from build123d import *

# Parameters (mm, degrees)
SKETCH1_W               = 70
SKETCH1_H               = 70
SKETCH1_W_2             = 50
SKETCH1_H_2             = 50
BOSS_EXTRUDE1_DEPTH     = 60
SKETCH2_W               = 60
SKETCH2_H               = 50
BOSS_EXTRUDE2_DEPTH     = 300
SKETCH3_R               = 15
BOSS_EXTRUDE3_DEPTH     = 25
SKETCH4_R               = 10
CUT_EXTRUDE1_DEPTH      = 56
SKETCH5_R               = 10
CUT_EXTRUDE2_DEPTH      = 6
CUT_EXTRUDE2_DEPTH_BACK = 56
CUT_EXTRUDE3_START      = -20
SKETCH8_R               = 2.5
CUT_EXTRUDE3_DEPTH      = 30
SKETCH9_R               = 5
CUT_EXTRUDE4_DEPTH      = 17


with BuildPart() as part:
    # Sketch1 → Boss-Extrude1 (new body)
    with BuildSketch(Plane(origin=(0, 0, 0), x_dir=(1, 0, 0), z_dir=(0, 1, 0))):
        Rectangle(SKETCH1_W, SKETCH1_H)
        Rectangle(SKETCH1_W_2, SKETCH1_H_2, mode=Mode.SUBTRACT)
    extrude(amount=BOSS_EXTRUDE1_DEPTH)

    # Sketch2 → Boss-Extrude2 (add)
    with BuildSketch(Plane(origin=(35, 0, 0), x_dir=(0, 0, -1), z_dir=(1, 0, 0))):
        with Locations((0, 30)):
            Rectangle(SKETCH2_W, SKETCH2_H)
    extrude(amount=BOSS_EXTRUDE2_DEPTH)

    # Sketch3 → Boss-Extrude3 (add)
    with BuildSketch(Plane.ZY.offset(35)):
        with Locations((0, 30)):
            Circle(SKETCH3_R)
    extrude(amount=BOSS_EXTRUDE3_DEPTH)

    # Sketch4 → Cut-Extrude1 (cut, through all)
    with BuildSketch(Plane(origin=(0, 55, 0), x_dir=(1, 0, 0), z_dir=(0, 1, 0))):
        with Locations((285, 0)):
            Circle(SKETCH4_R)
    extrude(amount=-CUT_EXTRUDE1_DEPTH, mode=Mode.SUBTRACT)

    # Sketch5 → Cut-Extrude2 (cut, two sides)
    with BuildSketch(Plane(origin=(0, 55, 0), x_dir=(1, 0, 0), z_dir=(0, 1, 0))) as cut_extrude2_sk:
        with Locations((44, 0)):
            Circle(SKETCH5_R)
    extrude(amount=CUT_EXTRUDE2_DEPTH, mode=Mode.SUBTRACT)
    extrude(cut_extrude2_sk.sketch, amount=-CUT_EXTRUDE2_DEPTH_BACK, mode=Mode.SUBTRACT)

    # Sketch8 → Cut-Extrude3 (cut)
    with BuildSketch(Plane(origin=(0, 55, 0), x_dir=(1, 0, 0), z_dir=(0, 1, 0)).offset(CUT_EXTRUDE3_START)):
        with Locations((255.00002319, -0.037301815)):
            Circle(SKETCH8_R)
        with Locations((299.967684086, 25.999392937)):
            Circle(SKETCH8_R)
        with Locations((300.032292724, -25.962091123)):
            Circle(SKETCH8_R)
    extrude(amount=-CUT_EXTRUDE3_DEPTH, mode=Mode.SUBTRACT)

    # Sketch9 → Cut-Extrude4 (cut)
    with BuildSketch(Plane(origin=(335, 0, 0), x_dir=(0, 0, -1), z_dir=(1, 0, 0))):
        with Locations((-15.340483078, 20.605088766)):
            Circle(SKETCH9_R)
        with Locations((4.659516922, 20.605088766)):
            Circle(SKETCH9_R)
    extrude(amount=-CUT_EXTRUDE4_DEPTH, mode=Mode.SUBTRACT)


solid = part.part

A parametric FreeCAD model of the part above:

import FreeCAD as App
import Part
import Sketcher
Q = App.Units.Quantity

doc = App.newDocument("Part")
body = doc.addObject("PartDesign::Body", "Body")

sketch1 = body.newObject("Sketcher::SketchObject", "Sketch")
sketch1.AttachmentSupport = (doc.getObject("XZ_Plane"), [""])
sketch1.MapMode = "FlatFace"
sketch1.addGeometry(Part.LineSegment(App.Vector(-35, -35, 0), App.Vector(-35, 35, 0)), False)
sketch1.addGeometry(Part.LineSegment(App.Vector(-35, 35, 0), App.Vector(35, 35, 0)), False)
sketch1.addGeometry(Part.LineSegment(App.Vector(35, 35, 0), App.Vector(35, -35, 0)), False)
sketch1.addGeometry(Part.LineSegment(App.Vector(35, -35, 0), App.Vector(-35, -35, 0)), False)
sketch1.addGeometry(Part.LineSegment(App.Vector(25, 25, 0), App.Vector(-25, 25, 0)), False)
sketch1.addGeometry(Part.LineSegment(App.Vector(-25, 25, 0), App.Vector(-25, -25, 0)), False)
sketch1.addGeometry(Part.LineSegment(App.Vector(-25, -25, 0), App.Vector(25, -25, 0)), False)
sketch1.addGeometry(Part.LineSegment(App.Vector(25, -25, 0), App.Vector(25, 25, 0)), False)
sketch1.addConstraint(Sketcher.Constraint("Coincident", 0, 2, 1, 1))
sketch1.addConstraint(Sketcher.Constraint("Coincident", 1, 2, 2, 1))
sketch1.addConstraint(Sketcher.Constraint("Coincident", 2, 2, 3, 1))
sketch1.addConstraint(Sketcher.Constraint("Coincident", 3, 2, 0, 1))
sketch1.addConstraint(Sketcher.Constraint("Coincident", 4, 2, 5, 1))
sketch1.addConstraint(Sketcher.Constraint("Coincident", 5, 2, 6, 1))
sketch1.addConstraint(Sketcher.Constraint("Coincident", 6, 2, 7, 1))
sketch1.addConstraint(Sketcher.Constraint("Coincident", 7, 2, 4, 1))
sketch1.addConstraint(Sketcher.Constraint("Vertical", 0))
sketch1.addConstraint(Sketcher.Constraint("Horizontal", 1))
sketch1.addConstraint(Sketcher.Constraint("Vertical", 2))
sketch1.addConstraint(Sketcher.Constraint("Horizontal", 3))
sketch1.addConstraint(Sketcher.Constraint("Horizontal", 4))
sketch1.addConstraint(Sketcher.Constraint("Vertical", 5))
sketch1.addConstraint(Sketcher.Constraint("Horizontal", 6))
sketch1.addConstraint(Sketcher.Constraint("Vertical", 7))
sketch1.addConstraint(Sketcher.Constraint("Symmetric", 0, 2, 2, 2, -1, 1))
sketch1.addConstraint(Sketcher.Constraint("Symmetric", 4, 2, 6, 2, -1, 1))
sketch1.addConstraint(Sketcher.Constraint("Equal", 3, 0))
sketch1.addConstraint(Sketcher.Constraint("Equal", 6, 5))
sketch1.addConstraint(Sketcher.Constraint("DistanceX", 1, 1, 1, 2, Q("70 mm")))
sketch1.addConstraint(Sketcher.Constraint("DistanceX", 4, 2, 4, 1, Q("50 mm")))
pad1 = body.newObject("PartDesign::Pad", "Pad")
pad1.Profile = sketch1
pad1.Length = 60
pad1.Reversed = True

sketch2 = body.newObject("Sketcher::SketchObject", "Sketch001")
sketch2.AttachmentSupport = (doc.getObject("YZ_Plane"), [""])
sketch2.MapMode = "FlatFace"
sketch2.AttachmentOffset = App.Placement(App.Vector(0, 0, 35), App.Rotation())
sketch2.addGeometry(Part.LineSegment(App.Vector(55, 30, 0), App.Vector(5, 30, 0)), False)
sketch2.addGeometry(Part.LineSegment(App.Vector(5, 30, 0), App.Vector(5, -30, 0)), False)
sketch2.addGeometry(Part.LineSegment(App.Vector(5, -30, 0), App.Vector(55, -30, 0)), False)
sketch2.addGeometry(Part.LineSegment(App.Vector(55, -30, 0), App.Vector(55, 30, 0)), False)
sketch2.addConstraint(Sketcher.Constraint("Coincident", 0, 2, 1, 1))
sketch2.addConstraint(Sketcher.Constraint("Coincident", 1, 2, 2, 1))
sketch2.addConstraint(Sketcher.Constraint("Coincident", 2, 2, 3, 1))
sketch2.addConstraint(Sketcher.Constraint("Coincident", 3, 2, 0, 1))
sketch2.addConstraint(Sketcher.Constraint("Horizontal", 0))
sketch2.addConstraint(Sketcher.Constraint("Vertical", 1))
sketch2.addConstraint(Sketcher.Constraint("Horizontal", 2))
sketch2.addConstraint(Sketcher.Constraint("Vertical", 3))
sketch2.addConstraint(Sketcher.Constraint("DistanceX", 0, 2, 0, 1, Q("50 mm")))
sketch2.addConstraint(Sketcher.Constraint("DistanceY", 1, 2, 1, 1, Q("60 mm")))
sketch2.addConstraint(Sketcher.Constraint("DistanceX", -1, 1, 0, 2, Q("5 mm")))
sketch2.addConstraint(Sketcher.Constraint("DistanceY", -1, 1, 0, 2, Q("30 mm")))
pad2 = body.newObject("PartDesign::Pad", "Pad001")
pad2.Profile = sketch2
pad2.Length = 300

sketch3 = body.newObject("Sketcher::SketchObject", "Sketch002")
sketch3.AttachmentSupport = (doc.getObject("YZ_Plane"), [""])
sketch3.MapMode = "FlatFace"
sketch3.AttachmentOffset = App.Placement(App.Vector(0, 0, -35), App.Rotation())
sketch3.addGeometry(Part.Circle(App.Vector(30, 0, 0), App.Vector(0, 0, 1), 15), False)
sketch3.addConstraint(Sketcher.Constraint("PointOnObject", 0, 3, -1))
sketch3.addConstraint(Sketcher.Constraint("Diameter", 0, Q("30 mm")))
sketch3.addConstraint(Sketcher.Constraint("DistanceX", -1, 1, 0, 3, Q("30 mm")))
pad3 = body.newObject("PartDesign::Pad", "Pad002")
pad3.Profile = sketch3
pad3.Length = 25
pad3.Reversed = True

sketch4 = body.newObject("Sketcher::SketchObject", "Sketch003")
sketch4.AttachmentSupport = (doc.getObject("XZ_Plane"), [""])
sketch4.MapMode = "FlatFace"
sketch4.AttachmentOffset = App.Placement(App.Vector(0, 0, -55), App.Rotation())
sketch4.addGeometry(Part.Circle(App.Vector(285, 0, 0), App.Vector(0, 0, 1), 10), False)
sketch4.addConstraint(Sketcher.Constraint("PointOnObject", 0, 3, -1))
sketch4.addConstraint(Sketcher.Constraint("Diameter", 0, Q("20 mm")))
sketch4.addConstraint(Sketcher.Constraint("DistanceX", -1, 1, 0, 3, Q("285 mm")))
pocket1 = body.newObject("PartDesign::Pocket", "Pocket")
pocket1.Profile = sketch4
pocket1.Type = "ThroughAll"
pocket1.Reversed = True

sketch5 = body.newObject("Sketcher::SketchObject", "Sketch004")
sketch5.AttachmentSupport = (doc.getObject("XZ_Plane"), [""])
sketch5.MapMode = "FlatFace"
sketch5.AttachmentOffset = App.Placement(App.Vector(0, 0, -55), App.Rotation())
sketch5.addGeometry(Part.Circle(App.Vector(44, 0, 0), App.Vector(0, 0, 1), 10), False)
sketch5.addConstraint(Sketcher.Constraint("PointOnObject", 0, 3, -1))
sketch5.addConstraint(Sketcher.Constraint("Diameter", 0, Q("20 mm")))
sketch5.addConstraint(Sketcher.Constraint("DistanceX", -1, 1, 0, 3, Q("44 mm")))
pocket2 = body.newObject("PartDesign::Pocket", "Pocket001")
pocket2.Profile = sketch5
pocket2.Type = "ThroughAll"
pocket2.Midplane = True

sketch6 = body.newObject("Sketcher::SketchObject", "Sketch005")
sketch6.AttachmentSupport = (doc.getObject("XZ_Plane"), [""])
sketch6.MapMode = "FlatFace"
sketch6.AttachmentOffset = App.Placement(App.Vector(0, 0, -35), App.Rotation())
sketch6.addGeometry(Part.Circle(App.Vector(255.000023, 0.037302, 0), App.Vector(0, 0, 1), 2.5), False)
sketch6.addGeometry(Part.Circle(App.Vector(299.967684, -25.999393, 0), App.Vector(0, 0, 1), 2.5), False)
sketch6.addGeometry(Part.Circle(App.Vector(300.032293, 25.962091, 0), App.Vector(0, 0, 1), 2.5), False)
sketch6.addConstraint(Sketcher.Constraint("Equal", 0, 1))
sketch6.addConstraint(Sketcher.Constraint("Equal", 1, 2))
sketch6.addConstraint(Sketcher.Constraint("Diameter", 0, Q("5 mm")))
sketch6.addConstraint(Sketcher.Constraint("DistanceY", -1, 1, 0, 3, Q("0.037302 mm")))
sketch6.addConstraint(Sketcher.Constraint("DistanceY", -1, 1, 2, 3, Q("25.962091 mm")))
sketch6.addConstraint(Sketcher.Constraint("DistanceX", 0, 3, 1, 3, Q("44.967661 mm")))
sketch6.addConstraint(Sketcher.Constraint("DistanceX", 1, 3, 2, 3, Q("0.064609 mm")))
sketch6.addConstraint(Sketcher.Constraint("DistanceX", -1, 1, 0, 3, Q("255.000023 mm")))
sketch6.addConstraint(Sketcher.Constraint("DistanceY", 1, 3, -1, 1, Q("25.999393 mm")))
pocket3 = body.newObject("PartDesign::Pocket", "Pocket002")
pocket3.Profile = sketch6
pocket3.Length = 30
pocket3.Reversed = True

sketch7 = body.newObject("Sketcher::SketchObject", "Sketch006")
sketch7.AttachmentSupport = (doc.getObject("YZ_Plane"), [""])
sketch7.MapMode = "FlatFace"
sketch7.AttachmentOffset = App.Placement(App.Vector(0, 0, 335), App.Rotation())
sketch7.addGeometry(Part.Circle(App.Vector(20.605089, 15.340483, 0), App.Vector(0, 0, 1), 5), False)
sketch7.addGeometry(Part.Circle(App.Vector(20.605089, -4.659517, 0), App.Vector(0, 0, 1), 5), False)
sketch7.addConstraint(Sketcher.Constraint("Equal", 0, 1))
sketch7.addConstraint(Sketcher.Constraint("Vertical", 0, 3, 1, 3))
sketch7.addConstraint(Sketcher.Constraint("Diameter", 0, Q("10 mm")))
sketch7.addConstraint(Sketcher.Constraint("DistanceY", 1, 3, 0, 3, Q("20 mm")))
sketch7.addConstraint(Sketcher.Constraint("DistanceX", -1, 1, 0, 3, Q("20.605089 mm")))
sketch7.addConstraint(Sketcher.Constraint("DistanceY", -1, 1, 0, 3, Q("15.340483 mm")))
pocket4 = body.newObject("PartDesign::Pocket", "Pocket003")
pocket4.Profile = sketch7
pocket4.Length = 17

doc.recompute()
